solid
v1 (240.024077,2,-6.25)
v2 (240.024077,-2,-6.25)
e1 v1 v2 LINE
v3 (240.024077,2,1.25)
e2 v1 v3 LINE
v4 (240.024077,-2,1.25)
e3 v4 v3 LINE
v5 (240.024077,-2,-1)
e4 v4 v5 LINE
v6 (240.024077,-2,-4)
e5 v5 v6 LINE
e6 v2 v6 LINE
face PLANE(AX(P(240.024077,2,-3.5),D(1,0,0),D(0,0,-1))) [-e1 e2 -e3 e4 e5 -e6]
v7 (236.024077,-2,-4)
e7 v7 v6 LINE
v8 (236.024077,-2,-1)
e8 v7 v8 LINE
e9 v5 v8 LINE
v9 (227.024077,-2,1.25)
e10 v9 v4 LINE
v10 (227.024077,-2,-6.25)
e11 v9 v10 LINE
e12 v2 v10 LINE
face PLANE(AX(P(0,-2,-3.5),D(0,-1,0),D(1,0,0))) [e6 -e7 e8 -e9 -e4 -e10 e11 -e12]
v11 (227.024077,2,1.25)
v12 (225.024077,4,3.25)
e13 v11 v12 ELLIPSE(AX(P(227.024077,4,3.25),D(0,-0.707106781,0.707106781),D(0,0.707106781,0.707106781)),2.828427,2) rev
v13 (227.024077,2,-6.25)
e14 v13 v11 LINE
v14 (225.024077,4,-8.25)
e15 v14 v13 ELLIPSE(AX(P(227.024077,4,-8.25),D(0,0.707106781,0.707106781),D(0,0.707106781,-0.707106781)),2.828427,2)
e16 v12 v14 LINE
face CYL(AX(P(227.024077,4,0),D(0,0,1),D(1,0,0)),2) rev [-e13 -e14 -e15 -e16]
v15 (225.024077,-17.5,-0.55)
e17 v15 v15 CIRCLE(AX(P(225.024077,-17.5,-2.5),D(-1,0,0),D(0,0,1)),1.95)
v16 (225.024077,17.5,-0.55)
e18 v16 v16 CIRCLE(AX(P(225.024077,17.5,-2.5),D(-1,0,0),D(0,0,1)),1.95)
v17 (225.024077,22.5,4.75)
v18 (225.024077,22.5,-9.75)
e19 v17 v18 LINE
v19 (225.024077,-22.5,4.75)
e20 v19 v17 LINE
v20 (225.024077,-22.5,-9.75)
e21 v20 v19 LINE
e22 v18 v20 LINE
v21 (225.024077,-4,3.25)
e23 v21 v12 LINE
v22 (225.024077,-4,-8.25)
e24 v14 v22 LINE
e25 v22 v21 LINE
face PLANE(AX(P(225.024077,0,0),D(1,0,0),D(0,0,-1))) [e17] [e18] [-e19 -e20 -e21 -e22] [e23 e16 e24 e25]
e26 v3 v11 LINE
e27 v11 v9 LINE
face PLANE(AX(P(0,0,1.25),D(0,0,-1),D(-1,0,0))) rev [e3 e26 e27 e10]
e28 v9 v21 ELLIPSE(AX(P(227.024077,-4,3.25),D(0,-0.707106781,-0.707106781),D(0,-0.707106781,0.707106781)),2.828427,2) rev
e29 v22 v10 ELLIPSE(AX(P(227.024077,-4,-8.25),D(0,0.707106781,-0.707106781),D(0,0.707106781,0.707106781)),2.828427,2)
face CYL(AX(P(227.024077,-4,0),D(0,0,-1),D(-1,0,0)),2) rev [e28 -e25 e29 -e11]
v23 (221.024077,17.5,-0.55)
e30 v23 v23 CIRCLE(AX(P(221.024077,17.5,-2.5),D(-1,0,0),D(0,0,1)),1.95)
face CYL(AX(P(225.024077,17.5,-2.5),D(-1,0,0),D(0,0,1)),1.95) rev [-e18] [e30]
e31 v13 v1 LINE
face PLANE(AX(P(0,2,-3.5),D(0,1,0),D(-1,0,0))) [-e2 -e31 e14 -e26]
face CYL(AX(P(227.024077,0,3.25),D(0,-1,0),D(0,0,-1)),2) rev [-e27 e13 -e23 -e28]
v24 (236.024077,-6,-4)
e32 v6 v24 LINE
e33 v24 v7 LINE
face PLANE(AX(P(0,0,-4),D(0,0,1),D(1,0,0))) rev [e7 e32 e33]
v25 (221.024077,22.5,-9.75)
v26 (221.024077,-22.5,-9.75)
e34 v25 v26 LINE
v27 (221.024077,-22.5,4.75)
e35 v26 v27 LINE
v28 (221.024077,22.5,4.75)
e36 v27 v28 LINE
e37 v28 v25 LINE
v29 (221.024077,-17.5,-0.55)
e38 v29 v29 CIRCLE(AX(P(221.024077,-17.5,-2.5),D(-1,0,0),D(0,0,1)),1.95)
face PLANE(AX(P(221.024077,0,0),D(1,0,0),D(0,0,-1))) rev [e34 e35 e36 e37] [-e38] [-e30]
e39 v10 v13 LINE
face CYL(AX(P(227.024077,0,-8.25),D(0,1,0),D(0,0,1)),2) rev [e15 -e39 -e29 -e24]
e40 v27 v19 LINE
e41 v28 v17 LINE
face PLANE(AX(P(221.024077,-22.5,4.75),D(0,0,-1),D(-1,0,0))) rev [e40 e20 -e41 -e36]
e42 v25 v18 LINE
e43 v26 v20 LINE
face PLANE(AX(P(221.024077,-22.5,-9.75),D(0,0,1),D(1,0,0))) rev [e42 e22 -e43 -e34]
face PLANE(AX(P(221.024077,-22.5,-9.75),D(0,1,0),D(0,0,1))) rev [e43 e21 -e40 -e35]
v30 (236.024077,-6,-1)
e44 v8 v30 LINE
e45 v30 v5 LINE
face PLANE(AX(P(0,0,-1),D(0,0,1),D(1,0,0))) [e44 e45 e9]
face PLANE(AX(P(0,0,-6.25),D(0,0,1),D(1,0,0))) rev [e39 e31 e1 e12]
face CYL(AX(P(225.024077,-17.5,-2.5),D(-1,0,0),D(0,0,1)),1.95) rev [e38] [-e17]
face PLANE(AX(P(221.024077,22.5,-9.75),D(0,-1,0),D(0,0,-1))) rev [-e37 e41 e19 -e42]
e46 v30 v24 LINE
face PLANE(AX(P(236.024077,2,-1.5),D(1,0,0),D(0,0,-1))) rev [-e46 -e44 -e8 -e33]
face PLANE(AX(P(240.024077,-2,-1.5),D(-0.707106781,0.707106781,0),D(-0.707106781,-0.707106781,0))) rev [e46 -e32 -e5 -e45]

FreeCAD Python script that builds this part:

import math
import FreeCAD as App
import Part
import Sketcher

V = App.Vector


def edges_at(feature, points):
    """Names of the edges that pass closest to the given points."""
    edges = feature.Shape.Edges
    near = lambda p: min(range(len(edges)), key=lambda i: edges[i].distToShape(Part.Vertex(*p))[0])
    return sorted({f"Edge{near(p) + 1}" for p in points})


def add_polygon(sketch, points):
    """Adds a closed chain of lines whose ends are joined by coincident constraints."""
    first, n = sketch.GeometryCount, len(points)
    for a, b in zip(points, points[1:] + points[:1]):
        sketch.addGeometry(Part.LineSegment(App.Vector(*a, 0), App.Vector(*b, 0)), False)
    for i in range(n):
        sketch.addConstraint(Sketcher.Constraint("Coincident", first + i, 2, first + (i + 1) % n, 1))

doc = App.newDocument("Part")
params = doc.addObject("Spreadsheet::Sheet", "Params")
for row, (alias, value) in enumerate([
    ("sketch1_diameter", "2 mm"),
    ("sketch1_radius", "2 mm"),
    ("sketch1_width", "5 mm"),
    ("pad1_length", "1 mm"),
    ("pad1_length2", "1 mm"),
    ("sketch2_width", "5 mm"),
    ("sketch2_height", "2 mm"),
    ("sketch2_height2", "3 mm"),
    ("pad2_length", "4 mm"),
    ("sketch3_diameter", "2.14 mm"),
    ("sketch4_height", "4 mm"),
    ("pad3_length", "2 mm"),
    ("sketch5_width", "4 mm"),
    ("sketch5_height", "8 mm"),
    ("pad4_length", "2 mm"),
    ("sketch6_width", "4 mm"),
    ("pocket2_length", "2 mm"),
    ("sketch7_height", "4 mm"),
    ("sketch7_width", "16.5 mm"),
    ("pad5_length", "2.75 mm"),
    ("sketch8_height", "4 mm"),
    ("sketch8_width", "16.5 mm"),
    ("pad6_length", "2.75 mm"),
    ("sketch9_width", "4 mm"),
    ("pad7_length", "0.5 mm"),
    ("sketch10_width", "4 mm"),
    ("pad8_length", "0.5 mm"),
    ("sketch11_height", "4 mm"),
    ("pad9_length", "7.5 mm"),
    ("sketch12_height", "40 mm"),
    ("pocket3_length", "10 mm"),
    ("pocket3_length2", "2 mm"),
    ("sketch13_width", "45 mm"),
    ("sketch13_height", "14.5 mm"),
    ("pad10_length", "4 mm"),
    ("sketch14_diameter", "3.9 mm"),
    ("pocket4_length", "4 mm"),
    ("fillet_radius", "2 mm"),
], start=1):
    params.set(f"A{row}", alias)
    params.set(f"B{row}", "=" + value)
    params.setAlias(f"B{row}", alias)

body = doc.addObject("PartDesign::Body", "Body")

# Sketch on XY plane
sketch1 = body.newObject("Sketcher::SketchObject", "Sketch")
sketch1.AttachmentSupport = (doc.getObject("XY_Plane"), [""])
sketch1.MapMode = "FlatFace"
sketch1.AttachmentOffset = App.Placement(V(0, 0, -2.5), App.Rotation())
sketch1.addGeometry(Part.LineSegment(V(230, 2, 0), V(225, 2, 0)), False)
sketch1.addGeometry(Part.LineSegment(V(225, 2, 0), V(225, -2, 0)), False)
sketch1.addGeometry(Part.LineSegment(V(225, -2, 0), V(230, -2, 0)), False)
sketch1.addGeometry(Part.ArcOfCircle(Part.Circle(V(230, 0, 0), V(0, 0, 1), 2), math.radians(-90), math.radians(90)), False)
sketch1.addGeometry(Part.Circle(V(230, 0, 0), V(0, 0, 1), 1), False)
sketch1.addConstraint(Sketcher.Constraint("Coincident", 0, 2, 1, 1))
sketch1.addConstraint(Sketcher.Constraint("Coincident", 1, 2, 2, 1))
sketch1.addConstraint(Sketcher.Constraint("Tangent", 2, 2, 3, 1))
sketch1.addConstraint(Sketcher.Constraint("Tangent", 3, 2, 0, 1))
sketch1.addConstraint(Sketcher.Constraint("Horizontal", 0))
sketch1.addConstraint(Sketcher.Constraint("Vertical", 1))
sketch1.addConstraint(Sketcher.Constraint("Horizontal", 2))
sketch1.addConstraint(Sketcher.Constraint("Coincident", 4, 3, 3, 3))
sketch1.addConstraint(Sketcher.Constraint("PointOnObject", 3, 3, -1))
sketch1.addConstraint(Sketcher.Constraint("Diameter", 4, 2.0))
sketch1.addConstraint(Sketcher.Constraint("Radius", 3, 2.0))
sketch1.addConstraint(Sketcher.Constraint("DistanceX", 0, 2, 0, 1, 5.0))
sketch1.addConstraint(Sketcher.Constraint("DistanceX", -1, 1, 3, 3, 230.024077))
sketch1.setExpression("Constraints[9]", "Params.sketch1_diameter")
sketch1.setExpression("Constraints[10]", "Params.sketch1_radius")
sketch1.setExpression("Constraints[11]", "Params.sketch1_width")
pad1 = body.newObject("PartDesign::Pad", "Pad")
pad1.Profile = sketch1
pad1.Type = "TwoLengths"
pad1.setExpression("Length", "Params.pad1_length")
pad1.setExpression("Length2", "Params.pad1_length2")

# Sketch on XZ plane
sketch2 = body.newObject("Sketcher::SketchObject", "Sketch001")
sketch2.AttachmentSupport = (doc.getObject("XZ_Plane"), [""])
sketch2.MapMode = "FlatFace"
sketch2.AttachmentOffset = App.Placement(V(0, 0, -2), App.Rotation())
add_polygon(sketch2, [(225, -3.5), (222, -10.5), (216.1, -10.5), (216.1, -8.5), (221.1, -8.5), (223, -4), (223, -1), (221.1, 3.5), (216.1, 3.5), (216.1, 5.5), (222, 5.5), (225, -1.5)])  # lines 0-11
sketch2.addConstraint(Sketcher.Constraint("Horizontal", 1))
sketch2.addConstraint(Sketcher.Constraint("Vertical", 2))
sketch2.addConstraint(Sketcher.Constraint("Horizontal", 3))
sketch2.addConstraint(Sketcher.Constraint("Vertical", 5))
sketch2.addConstraint(Sketcher.Constraint("Horizontal", 7))
sketch2.addConstraint(Sketcher.Constraint("Vertical", 8))
sketch2.addConstraint(Sketcher.Constraint("Horizontal", 9))
sketch2.addConstraint(Sketcher.Constraint("Vertical", 11))
sketch2.addConstraint(Sketcher.Constraint("Parallel", 0, 4))
sketch2.addConstraint(Sketcher.Constraint("Parallel", 6, 10))
sketch2.addConstraint(Sketcher.Constraint("Vertical", 3, 2, 6, 2))
sketch2.addConstraint(Sketcher.Constraint("Vertical", 2, 2, 7, 2))
sketch2.addConstraint(Sketcher.Constraint("Vertical", 0, 2, 9, 2))
sketch2.addConstraint(Sketcher.Constraint("Equal", 2, 8))
sketch2.addConstraint(Sketcher.Constraint("Equal", 8, 11))
sketch2.addConstraint(Sketcher.Constraint("Equal", 4, 6))
sketch2.addConstraint(Sketcher.Constraint("DistanceX", 3, 1, 3, 2, 5.0))
sketch2.addConstraint(Sketcher.Constraint("DistanceY", 2, 1, 2, 2, 2.0))
sketch2.addConstraint(Sketcher.Constraint("DistanceY", 5, 1, 5, 2, 3.0))
sketch2.addConstraint(Sketcher.Constraint("DistanceY", 4, 2, -1, 1, 4.0))
sketch2.addConstraint(Sketcher.Constraint("DistanceX", 0, 2, 4, 2, 1.0))
sketch2.addConstraint(Sketcher.Constraint("DistanceY", 3, 2, 6, 2, 12.0))
sketch2.addConstraint(Sketcher.Constraint("DistanceX", 5, 2, 10, 2, 2.0))
sketch2.addConstraint(Sketcher.Constraint("DistanceX", -1, 1, 0, 2, 222.024077))
sketch2.setExpression("Constraints[28]", "Params.sketch2_width")
sketch2.setExpression("Constraints[29]", "Params.sketch2_height")
sketch2.setExpression("Constraints[30]", "Params.sketch2_height2")
pad2 = body.newObject("PartDesign::Pad", "Pad001")
pad2.Profile = sketch2
pad2.setExpression("Length", "Params.pad2_length")

# Sketch on XY plane
sketch3 = body.newObject("Sketcher::SketchObject", "Sketch002")
sketch3.AttachmentSupport = (doc.getObject("XY_Plane"), [""])
sketch3.MapMode = "FlatFace"
sketch3.AttachmentOffset = App.Placement(V(0, 0, -10.5), App.Rotation())
sketch3.addGeometry(Part.Circle(V(218.1, 0, 0), V(0, 0, 1), 1.1), False)
sketch3.addConstraint(Sketcher.Constraint("PointOnObject", 0, 3, -1))
sketch3.addConstraint(Sketcher.Constraint("Diameter", 0, 2.14))
sketch3.addConstraint(Sketcher.Constraint("DistanceX", -1, 1, 0, 3, 218.095506))
sketch3.setExpression("Constraints[1]", "Params.sketch3_diameter")
pocket1 = body.newObject("PartDesign::Pocket", "Pocket")
pocket1.Profile = sketch3
pocket1.Type = "ThroughAll"
pocket1.Reversed = True

# Sketch on XY plane
sketch4 = body.newObject("Sketcher::SketchObject", "Sketch003")
sketch4.AttachmentSupport = (doc.getObject("XY_Plane"), [""])
sketch4.MapMode = "FlatFace"
sketch4.AttachmentOffset = App.Placement(V(0, 0, -1.5), App.Rotation())
add_polygon(sketch4, [(240, 2), (228.1, 2), (228.1, -2), (240, -2)])  # lines 0-3
sketch4.addConstraint(Sketcher.Constraint("Horizontal", 0))
sketch4.addConstraint(Sketcher.Constraint("Vertical", 1))
sketch4.addConstraint(Sketcher.Constraint("Horizontal", 2))
sketch4.addConstraint(Sketcher.Constraint("Vertical", 3))
sketch4.addConstraint(Sketcher.Constraint("DistanceY", 1, 2, 1, 1, 4.0))
sketch4.addConstraint(Sketcher.Constraint("DistanceY", -1, 1, 0, 2, 2.0))
sketch4.addConstraint(Sketcher.Constraint("DistanceX", 0, 2, 0, 1, 11.92159))
sketch4.addConstraint(Sketcher.Constraint("DistanceX", -1, 1, 0, 2, 228.102488))
sketch4.setExpression("Constraints[8]", "Params.sketch4_height")
pad3 = body.newObject("PartDesign::Pad", "Pad002")
pad3.Profile = sketch4
pad3.setExpression("Length", "Params.pad3_length")
pad3.Reversed = True

# Sketch on XY plane
sketch5 = body.newObject("Sketcher::SketchObject", "Sketch004")
sketch5.AttachmentSupport = (doc.getObject("XY_Plane"), [""])
sketch5.MapMode = "FlatFace"
sketch5.AttachmentOffset = App.Placement(V(0, 0, -3.5), App.Rotation())
add_polygon(sketch5, [(240, 2), (240, -6), (236, -6), (236, 2)])  # lines 0-3
sketch5.addConstraint(Sketcher.Constraint("Vertical", 0))
sketch5.addConstraint(Sketcher.Constraint("Horizontal", 1))
sketch5.addConstraint(Sketcher.Constraint("Vertical", 2))
sketch5.addConstraint(Sketcher.Constraint("Horizontal", 3))
sketch5.addConstraint(Sketcher.Constraint("DistanceX", 1, 2, 1, 1, 4.0))
sketch5.addConstraint(Sketcher.Constraint("DistanceY", 0, 2, 0, 1, 8.0))
sketch5.addConstraint(Sketcher.Constraint("DistanceY", 0, 2, -1, 1, 6.0))
sketch5.addConstraint(Sketcher.Constraint("DistanceX", -1, 1, 0, 2, 240.024077))
sketch5.setExpression("Constraints[8]", "Params.sketch5_width")
sketch5.setExpression("Constraints[9]", "Params.sketch5_height")
pad4 = body.newObject("PartDesign::Pad", "Pad003")
pad4.Profile = sketch5
pad4.setExpression("Length", "Params.pad4_length")

# Sketch on XY plane
sketch6 = body.newObject("Sketcher::SketchObject", "Sketch005")
sketch6.AttachmentSupport = (doc.getObject("XY_Plane"), [""])
sketch6.MapMode = "FlatFace"
sketch6.AttachmentOffset = App.Placement(V(0, 0, -3.5), App.Rotation())
add_polygon(sketch6, [(240, -6), (236, -6), (240, -2)])  # lines 0-2
sketch6.addConstraint(Sketcher.Constraint("Horizontal", 0))
sketch6.addConstraint(Sketcher.Constraint("Vertical", 2))
sketch6.addConstraint(Sketcher.Constraint("Equal", 0, 2))
sketch6.addConstraint(Sketcher.Constraint("DistanceX", 0, 2, 0, 1, 4.0))
sketch6.addConstraint(Sketcher.Constraint("DistanceY", 0, 2, -1, 1, 6.0))
sketch6.addConstraint(Sketcher.Constraint("DistanceX", -1, 1, 0, 2, 236.024077))
sketch6.setExpression("Constraints[6]", "Params.sketch6_width")
pocket2 = body.newObject("PartDesign::Pocket", "Pocket001")
pocket2.Profile = sketch6
pocket2.setExpression("Length", "Params.pocket2_length")
pocket2.Reversed = True

# Sketch on XY plane
sketch7 = body.newObject("Sketcher::SketchObject", "Sketch006")
sketch7.AttachmentSupport = (doc.getObject("XY_Plane"), [""])
sketch7.MapMode = "FlatFace"
sketch7.AttachmentOffset = App.Placement(V(0, 0, -3.5), App.Rotation())
add_polygon(sketch7, [(240, 2), (240, -2), (223.5, -2), (223.5, 2)])  # lines 0-3
sketch7.addConstraint(Sketcher.Constraint("Vertical", 0))
sketch7.addConstraint(Sketcher.Constraint("Horizontal", 1))
sketch7.addConstraint(Sketcher.Constraint("Vertical", 2))
sketch7.addConstraint(Sketcher.Constraint("Horizontal", 3))
sketch7.addConstraint(Sketcher.Constraint("DistanceY", 0, 2, 0, 1, 4.0))
sketch7.addConstraint(Sketcher.Constraint("DistanceX", 1, 2, 1, 1, 16.5))
sketch7.addConstraint(Sketcher.Constraint("DistanceY", 0, 2, -1, 1, 2.0))
sketch7.addConstraint(Sketcher.Constraint("DistanceX", -1, 1, 0, 2, 240.024077))
sketch7.setExpression("Constraints[8]", "Params.sketch7_height")
sketch7.setExpression("Constraints[9]", "Params.sketch7_width")
pad5 = body.newObject("PartDesign::Pad", "Pad004")
pad5.Profile = sketch7
pad5.setExpression("Length", "Params.pad5_length")
pad5.Reversed = True

# Sketch on XY plane
sketch8 = body.newObject("Sketcher::SketchObject", "Sketch007")
sketch8.AttachmentSupport = (doc.getObject("XY_Plane"), [""])
sketch8.MapMode = "FlatFace"
sketch8.AttachmentOffset = App.Placement(V(0, 0, -1.5), App.Rotation())
add_polygon(sketch8, [(223.5, 2), (223.5, -2), (240, -2), (240, 2)])  # lines 0-3
sketch8.addConstraint(Sketcher.Constraint("Vertical", 0))
sketch8.addConstraint(Sketcher.Constraint("Horizontal", 1))
sketch8.addConstraint(Sketcher.Constraint("Vertical", 2))
sketch8.addConstraint(Sketcher.Constraint("Horizontal", 3))
sketch8.addConstraint(Sketcher.Constraint("DistanceY", 0, 2, 0, 1, 4.0))
sketch8.addConstraint(Sketcher.Constraint("DistanceX", 1, 1, 1, 2, 16.5))
sketch8.addConstraint(Sketcher.Constraint("DistanceY", 0, 2, -1, 1, 2.0))
sketch8.addConstraint(Sketcher.Constraint("DistanceX", -1, 1, 0, 2, 223.524077))
sketch8.setExpression("Constraints[8]", "Params.sketch8_height")
sketch8.setExpression("Constraints[9]", "Params.sketch8_width")
pad6 = body.newObject("PartDesign::Pad", "Pad005")
pad6.Profile = sketch8
pad6.setExpression("Length", "Params.pad6_length")

# Sketch on XY plane
sketch9 = body.newObject("Sketcher::SketchObject", "Sketch008")
sketch9.AttachmentSupport = (doc.getObject("XY_Plane"), [""])
sketch9.MapMode = "FlatFace"
sketch9.AttachmentOffset = App.Placement(V(0, 0, -3.5), App.Rotation())
add_polygon(sketch9, [(240, -2), (236, -6), (236, -2)])  # lines 0-2
sketch9.addConstraint(Sketcher.Constraint("Vertical", 1))
sketch9.addConstraint(Sketcher.Constraint("Horizontal", 2))
sketch9.addConstraint(Sketcher.Constraint("Equal", 2, 1))
sketch9.addConstraint(Sketcher.Constraint("DistanceX", 2, 1, 2, 2, 4.0))
sketch9.addConstraint(Sketcher.Constraint("DistanceY", 0, 2, -1, 1, 6.0))
sketch9.addConstraint(Sketcher.Constraint("DistanceX", -1, 1, 0, 2, 236.024077))
sketch9.setExpression("Constraints[6]", "Params.sketch9_width")
pad7 = body.newObject("PartDesign::Pad", "Pad006")
pad7.Profile = sketch9
pad7.setExpression("Length", "Params.pad7_length")
pad7.Reversed = True

# Sketch on XY plane
sketch10 = body.newObject("Sketcher::SketchObject", "Sketch009")
sketch10.AttachmentSupport = (doc.getObject("XY_Plane"), [""])
sketch10.MapMode = "FlatFace"
sketch10.AttachmentOffset = App.Placement(V(0, 0, -1.5), App.Rotation())
add_polygon(sketch10, [(236, -2), (236, -6), (240, -2)])  # lines 0-2
sketch10.addConstraint(Sketcher.Constraint("Vertical", 0))
sketch10.addConstraint(Sketcher.Constraint("Horizontal", 2))
sketch10.addConstraint(Sketcher.Constraint("Equal", 2, 0))
sketch10.addConstraint(Sketcher.Constraint("DistanceX", 2, 2, 2, 1, 4.0))
sketch10.addConstraint(Sketcher.Constraint("DistanceY", 0, 2, -1, 1, 6.0))
sketch10.addConstraint(Sketcher.Constraint("DistanceX", -1, 1, 0, 2, 236.024077))
sketch10.setExpression("Constraints[6]", "Params.sketch10_width")
pad8 = body.newObject("PartDesign::Pad", "Pad007")
pad8.Profile = sketch10
pad8.setExpression("Length", "Params.pad8_length")

# Sketch on XY plane
sketch11 = body.newObject("Sketcher::SketchObject", "Sketch010")
sketch11.AttachmentSupport = (doc.getObject("XY_Plane"), [""])
sketch11.MapMode = "FlatFace"
sketch11.AttachmentOffset = App.Placement(V(0, 0, -6.25), App.Rotation())
add_polygon(sketch11, [(224.8, 2), (224.8, -2), (223, -2), (223, 2)])  # lines 0-3
sketch11.addConstraint(Sketcher.Constraint("Vertical", 0))
sketch11.addConstraint(Sketcher.Constraint("Horizontal", 1))
sketch11.addConstraint(Sketcher.Constraint("Vertical", 2))
sketch11.addConstraint(Sketcher.Constraint("Horizontal", 3))
sketch11.addConstraint(Sketcher.Constraint("DistanceY", 0, 2, 0, 1, 4.0))
sketch11.addConstraint(Sketcher.Constraint("DistanceY", 0, 2, -1, 1, 2.0))
sketch11.addConstraint(Sketcher.Constraint("DistanceX", -1, 1, 0, 2, 224.804))
sketch11.addConstraint(Sketcher.Constraint("DistanceX", 1, 2, 1, 1, 1.779922))
sketch11.setExpression("Constraints[8]", "Params.sketch11_height")
pad9 = body.newObject("PartDesign::Pad", "Pad008")
pad9.Profile = sketch11
pad9.setExpression("Length", "Params.pad9_length")

# Sketch on YZ plane
sketch12 = body.newObject("Sketcher::SketchObject", "Sketch011")
sketch12.AttachmentSupport = (doc.getObject("YZ_Plane"), [""])
sketch12.MapMode = "FlatFace"
sketch12.AttachmentOffset = App.Placement(V(0, 0, 223.024077), App.Rotation())
add_polygon(sketch12, [(14, -22), (-14, -22), (-14, 18), (14, 18)])  # lines 0-3
sketch12.addConstraint(Sketcher.Constraint("Horizontal", 0))
sketch12.addConstraint(Sketcher.Constraint("Vertical", 1))
sketch12.addConstraint(Sketcher.Constraint("Horizontal", 2))
sketch12.addConstraint(Sketcher.Constraint("Vertical", 3))
sketch12.addConstraint(Sketcher.Constraint("DistanceY", 1, 1, 1, 2, 40.0))
sketch12.addConstraint(Sketcher.Constraint("DistanceY", 0, 2, -1, 1, 22.5))
sketch12.addConstraint(Sketcher.Constraint("DistanceX", 0, 2, 0, 1, 27.313609))
sketch12.addConstraint(Sketcher.Constraint("DistanceX", 0, 2, -1, 1, 13.656804))
sketch12.setExpression("Constraints[8]", "Params.sketch12_height")
pocket3 = body.newObject("PartDesign::Pocket", "Pocket002")
pocket3.Profile = sketch12
pocket3.Type = "TwoLengths"
pocket3.setExpression("Length", "Params.pocket3_length")
pocket3.setExpression("Length2", "Params.pocket3_length2")

# Sketch on YZ plane
sketch13 = body.newObject("Sketcher::SketchObject", "Sketch012")
sketch13.AttachmentSupport = (doc.getObject("YZ_Plane"), [""])
sketch13.MapMode = "FlatFace"
sketch13.AttachmentOffset = App.Placement(V(0, 0, 225.024077), App.Rotation())
add_polygon(sketch13, [(22, -10), (-22, -10), (-22, 5), (22, 5)])  # lines 0-3
sketch13.addConstraint(Sketcher.Constraint("Horizontal", 0))
sketch13.addConstraint(Sketcher.Constraint("Vertical", 1))
sketch13.addConstraint(Sketcher.Constraint("Horizontal", 2))
sketch13.addConstraint(Sketcher.Constraint("Vertical", 3))
sketch13.addConstraint(Sketcher.Constraint("DistanceX", 0, 2, 0, 1, 45.0))
sketch13.addConstraint(Sketcher.Constraint("DistanceY", 1, 1, 1, 2, 14.5))
sketch13.addConstraint(Sketcher.Constraint("DistanceX", 0, 2, -1, 1, 22.5))
sketch13.addConstraint(Sketcher.Constraint("DistanceY", 0, 2, -1, 1, 9.75))
sketch13.setExpression("Constraints[8]", "Params.sketch13_width")
sketch13.setExpression("Constraints[9]", "Params.sketch13_height")
pad10 = body.newObject("PartDesign::Pad", "Pad009")
pad10.Profile = sketch13
pad10.setExpression("Length", "Params.pad10_length")
pad10.Reversed = True

# Sketch on YZ plane
sketch14 = body.newObject("Sketcher::SketchObject", "Sketch013")
sketch14.AttachmentSupport = (doc.getObject("YZ_Plane"), [""])
sketch14.MapMode = "FlatFace"
sketch14.AttachmentOffset = App.Placement(V(0, 0, 221.024077), App.Rotation())
sketch14.addGeometry(Part.Circle(V(17.5, -2.5, 0), V(0, 0, 1), 1.9), False)
sketch14.addGeometry(Part.Circle(V(-17.5, -2.5, 0), V(0, 0, 1), 1.9), False)
sketch14.addConstraint(Sketcher.Constraint("Equal", 0, 1))
sketch14.addConstraint(Sketcher.Constraint("Symmetric", 0, 3, 1, 3, -2))
sketch14.addConstraint(Sketcher.Constraint("Diameter", 0, 3.9))
sketch14.addConstraint(Sketcher.Constraint("DistanceX", 1, 3, 0, 3, 35.0))
sketch14.addConstraint(Sketcher.Constraint("DistanceY", 0, 3, -1, 1, 2.5))
sketch14.setExpression("Constraints[2]", "Params.sketch14_diameter")
pocket4 = body.newObject("PartDesign::Pocket", "Pocket003")
pocket4.Profile = sketch14
pocket4.setExpression("Length", "Params.pocket4_length")
pocket4.Reversed = True
doc.recompute()

fillet = body.newObject("PartDesign::Fillet", "Fillet")
fillet.Base = (pocket4, edges_at(pocket4, [
    (225.024, 0, 1.25),
    (225.024, 0, -6.25),
    (225.024, -2, -2.5),
    (225.024, 2, -2.5),
]))
fillet.setExpression("Radius", "Params.fillet_radius")

doc.recompute()
